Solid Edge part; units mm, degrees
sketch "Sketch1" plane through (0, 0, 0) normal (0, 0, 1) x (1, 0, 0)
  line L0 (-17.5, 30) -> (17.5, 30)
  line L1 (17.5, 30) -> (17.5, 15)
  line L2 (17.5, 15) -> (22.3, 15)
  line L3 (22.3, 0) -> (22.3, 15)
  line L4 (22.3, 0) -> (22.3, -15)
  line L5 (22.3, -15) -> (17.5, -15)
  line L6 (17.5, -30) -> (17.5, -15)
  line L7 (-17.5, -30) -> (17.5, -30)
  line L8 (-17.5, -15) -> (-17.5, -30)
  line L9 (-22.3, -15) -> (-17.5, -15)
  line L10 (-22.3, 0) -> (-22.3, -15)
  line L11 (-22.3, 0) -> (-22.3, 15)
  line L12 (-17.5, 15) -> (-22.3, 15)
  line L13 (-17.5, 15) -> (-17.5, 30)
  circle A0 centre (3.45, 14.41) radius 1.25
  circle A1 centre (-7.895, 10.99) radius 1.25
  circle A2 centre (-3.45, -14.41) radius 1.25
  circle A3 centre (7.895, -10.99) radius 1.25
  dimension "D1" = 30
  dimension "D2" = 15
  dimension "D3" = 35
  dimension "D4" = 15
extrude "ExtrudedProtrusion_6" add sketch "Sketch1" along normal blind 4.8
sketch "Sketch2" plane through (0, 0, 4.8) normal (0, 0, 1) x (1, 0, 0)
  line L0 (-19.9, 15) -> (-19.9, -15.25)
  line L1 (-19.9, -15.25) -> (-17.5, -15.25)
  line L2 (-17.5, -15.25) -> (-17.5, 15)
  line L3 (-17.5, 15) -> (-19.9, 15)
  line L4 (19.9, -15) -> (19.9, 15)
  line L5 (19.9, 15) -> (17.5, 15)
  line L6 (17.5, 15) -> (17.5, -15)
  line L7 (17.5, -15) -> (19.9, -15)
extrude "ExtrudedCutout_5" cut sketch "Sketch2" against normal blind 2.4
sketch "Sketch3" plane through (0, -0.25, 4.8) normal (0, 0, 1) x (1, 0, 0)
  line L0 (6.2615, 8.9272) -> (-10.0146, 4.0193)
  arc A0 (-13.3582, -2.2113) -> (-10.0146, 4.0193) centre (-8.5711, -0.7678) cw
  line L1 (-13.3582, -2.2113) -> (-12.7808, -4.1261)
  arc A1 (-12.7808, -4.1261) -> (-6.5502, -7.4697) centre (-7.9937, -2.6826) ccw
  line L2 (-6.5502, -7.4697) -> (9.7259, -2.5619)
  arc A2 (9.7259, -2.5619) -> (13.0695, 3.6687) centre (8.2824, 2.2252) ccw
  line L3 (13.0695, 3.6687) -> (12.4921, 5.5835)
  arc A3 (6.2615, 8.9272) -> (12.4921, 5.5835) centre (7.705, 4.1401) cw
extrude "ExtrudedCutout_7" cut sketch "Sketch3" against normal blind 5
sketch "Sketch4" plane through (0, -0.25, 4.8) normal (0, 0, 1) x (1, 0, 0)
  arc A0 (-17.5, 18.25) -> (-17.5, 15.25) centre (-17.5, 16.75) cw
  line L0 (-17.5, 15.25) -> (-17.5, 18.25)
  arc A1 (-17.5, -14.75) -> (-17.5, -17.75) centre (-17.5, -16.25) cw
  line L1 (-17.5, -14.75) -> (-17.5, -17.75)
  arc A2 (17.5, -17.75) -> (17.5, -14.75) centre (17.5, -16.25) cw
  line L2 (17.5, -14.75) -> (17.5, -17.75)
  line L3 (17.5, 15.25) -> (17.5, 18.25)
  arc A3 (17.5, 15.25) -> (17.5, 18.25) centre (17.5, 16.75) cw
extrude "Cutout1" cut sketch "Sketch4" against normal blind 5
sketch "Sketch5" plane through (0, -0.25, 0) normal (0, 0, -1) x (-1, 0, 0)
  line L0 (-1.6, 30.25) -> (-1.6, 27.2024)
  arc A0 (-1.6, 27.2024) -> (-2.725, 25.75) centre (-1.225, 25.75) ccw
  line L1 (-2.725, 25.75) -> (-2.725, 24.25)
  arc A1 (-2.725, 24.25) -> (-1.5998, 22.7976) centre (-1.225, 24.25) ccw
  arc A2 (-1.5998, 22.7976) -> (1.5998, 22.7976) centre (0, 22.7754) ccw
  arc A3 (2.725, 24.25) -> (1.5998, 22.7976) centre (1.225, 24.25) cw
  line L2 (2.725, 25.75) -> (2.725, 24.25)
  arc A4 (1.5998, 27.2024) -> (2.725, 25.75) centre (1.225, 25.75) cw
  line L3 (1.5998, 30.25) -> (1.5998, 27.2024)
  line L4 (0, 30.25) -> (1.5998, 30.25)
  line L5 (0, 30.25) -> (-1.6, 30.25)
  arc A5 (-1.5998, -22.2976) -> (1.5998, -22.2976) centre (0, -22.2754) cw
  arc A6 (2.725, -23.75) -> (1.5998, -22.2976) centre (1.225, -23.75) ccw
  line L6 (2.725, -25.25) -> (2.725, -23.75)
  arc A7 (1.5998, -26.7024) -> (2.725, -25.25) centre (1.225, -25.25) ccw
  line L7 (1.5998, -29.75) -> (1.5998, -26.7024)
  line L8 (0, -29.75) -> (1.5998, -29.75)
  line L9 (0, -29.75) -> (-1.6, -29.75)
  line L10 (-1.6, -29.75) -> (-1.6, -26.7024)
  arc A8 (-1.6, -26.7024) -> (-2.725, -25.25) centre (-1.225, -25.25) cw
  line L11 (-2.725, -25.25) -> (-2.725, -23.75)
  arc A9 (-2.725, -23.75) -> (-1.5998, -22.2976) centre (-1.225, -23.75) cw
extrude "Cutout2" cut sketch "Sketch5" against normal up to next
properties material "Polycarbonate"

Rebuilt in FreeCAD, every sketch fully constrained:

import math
import FreeCAD as App
import Part
import Sketcher
Q = App.Units.Quantity

doc = App.newDocument("Part")
params = doc.addObject("Spreadsheet::Sheet", "Params")
for row, (alias, value) in enumerate([
    ("sketch1_diameter", "2.5 mm"),
    ("sketch1_width", "35 mm"),
    ("sketch1_height", "15 mm"),
    ("sketch1_height2", "30 mm"),
    ("sketch1_width2", "4.8 mm"),
    ("pad1_length", "4.8 mm"),
    ("sketch2_height", "30 mm"),
    ("sketch2_width", "2.4 mm"),
    ("sketch2_height2", "30.25 mm"),
    ("pocket1_length", "2.4 mm"),
    ("sketch3_radius", "5 mm"),
    ("sketch3_length", "17 mm"),
    ("sketch3_length2", "2 mm"),
    ("pocket2_length", "5 mm"),
    ("sketch4_radius", "1.5 mm"),
    ("pocket3_length", "5 mm"),
    ("sketch5_radius", "1.5 mm"),
    ("sketch5_radius2", "1.5 mm"),
    ("sketch5_radius3", "1.6 mm"),
    ("sketch5_radius4", "1.5 mm"),
    ("sketch5_radius5", "1.5 mm"),
    ("pocket4_length", "4.8 mm"),
], start=1):
    params.set(f"A{row}", alias)
    params.set(f"B{row}", "=" + value)
    params.setAlias(f"B{row}", alias)

body = doc.addObject("PartDesign::Body", "Body")

# Sketch on XY plane
sketch1 = doc.addObject("Sketcher::SketchObject", "Sketch")
body.addObject(sketch1)
sketch1.AttachmentSupport = (doc.XY_Plane, [""])
sketch1.MapMode = "FlatFace"
sketch1.addGeometry([
    Part.LineSegment(App.Vector(17.5, 30, 0), App.Vector(-17.5, 30, 0)),  # 0
    Part.LineSegment(App.Vector(-17.5, 30, 0), App.Vector(-17.5, 15, 0)),  # 1
    Part.LineSegment(App.Vector(-17.5, 15, 0), App.Vector(-22.3, 15, 0)),  # 2
    Part.LineSegment(App.Vector(-22.3, 15, 0), App.Vector(-22.3, -15, 0)),  # 3
    Part.LineSegment(App.Vector(-22.3, -15, 0), App.Vector(-17.5, -15, 0)),  # 4
    Part.LineSegment(App.Vector(-17.5, -15, 0), App.Vector(-17.5, -30, 0)),  # 5
    Part.LineSegment(App.Vector(-17.5, -30, 0), App.Vector(17.5, -30, 0)),  # 6
    Part.LineSegment(App.Vector(17.5, -30, 0), App.Vector(17.5, -15, 0)),  # 7
    Part.LineSegment(App.Vector(17.5, -15, 0), App.Vector(22.3, -15, 0)),  # 8
    Part.LineSegment(App.Vector(22.3, -15, 0), App.Vector(22.3, 15, 0)),  # 9
    Part.LineSegment(App.Vector(22.3, 15, 0), App.Vector(17.5, 15, 0)),  # 10
    Part.LineSegment(App.Vector(17.5, 15, 0), App.Vector(17.5, 30, 0)),  # 11
    Part.Circle(App.Vector(-3.5, -14.4, 0), App.Vector(0, 0, 1), 1.2),  # 12
    Part.Circle(App.Vector(7.9, -11, 0), App.Vector(0, 0, 1), 1.2),  # 13
    Part.Circle(App.Vector(-7.9, 11, 0), App.Vector(0, 0, 1), 1.2),  # 14
    Part.Circle(App.Vector(3.5, 14.4, 0), App.Vector(0, 0, 1), 1.2),  # 15
], False)
sketch1.addConstraint([
    Sketcher.Constraint("Coincident", 0, 2, 1, 1),
    Sketcher.Constraint("Coincident", 1, 2, 2, 1),
    Sketcher.Constraint("Coincident", 2, 2, 3, 1),
    Sketcher.Constraint("Coincident", 3, 2, 4, 1),
    Sketcher.Constraint("Coincident", 4, 2, 5, 1),
    Sketcher.Constraint("Coincident", 5, 2, 6, 1),
    Sketcher.Constraint("Coincident", 6, 2, 7, 1),
    Sketcher.Constraint("Coincident", 7, 2, 8, 1),
    Sketcher.Constraint("Coincident", 8, 2, 9, 1),
    Sketcher.Constraint("Coincident", 9, 2, 10, 1),
    Sketcher.Constraint("Coincident", 10, 2, 11, 1),
    Sketcher.Constraint("Coincident", 11, 2, 0, 1),
    Sketcher.Constraint("Horizontal", 0),
    Sketcher.Constraint("Vertical", 1),
    Sketcher.Constraint("Horizontal", 2),
    Sketcher.Constraint("Vertical", 3),
    Sketcher.Constraint("Horizontal", 4),
    Sketcher.Constraint("Vertical", 5),
    Sketcher.Constraint("Horizontal", 6),
    Sketcher.Constraint("Vertical", 7),
    Sketcher.Constraint("Horizontal", 8),
    Sketcher.Constraint("Vertical", 9),
    Sketcher.Constraint("Horizontal", 10),
    Sketcher.Constraint("Vertical", 11),
    Sketcher.Constraint("Equal", 12, 13),
    Sketcher.Constraint("Equal", 13, 14),
    Sketcher.Constraint("Equal", 14, 15),
    Sketcher.Constraint("Symmetric", 13, 3, 14, 3, -1, 1),
    Sketcher.Constraint("Symmetric", 12, 3, 15, 3, -1, 1),
    Sketcher.Constraint("Symmetric", 0, 2, 6, 2, -1, 1),
    Sketcher.Constraint("Symmetric", 2, 2, 8, 2, -1, 1),
    Sketcher.Constraint("Symmetric", 4, 2, 10, 2, -1, 1),
    Sketcher.Constraint("Symmetric", 4, 2, 7, 2, -2),
    Sketcher.Constraint("Diameter", 12, Q("2.5 mm")),
    Sketcher.Constraint("DistanceX", 0, 2, 0, 1, Q("35 mm")),
    Sketcher.Constraint("DistanceY", 1, 2, 1, 1, Q("15 mm")),
    Sketcher.Constraint("DistanceY", 3, 2, 3, 1, Q("30 mm")),
    Sketcher.Constraint("DistanceX", 2, 2, 2, 1, Q("4.8 mm")),
    Sketcher.Constraint("DistanceY", 12, 3, 14, 3, Q("25.4 mm")),
    Sketcher.Constraint("DistanceX", 12, 3, 15, 3, Q("6.9 mm")),
    Sketcher.Constraint("DistanceY", 12, 3, -1, 1, Q("14.41 mm")),
    Sketcher.Constraint("DistanceX", 14, 3, 13, 3, Q("15.79 mm")),
])
sketch1.setExpression("Constraints[33]", "Params.sketch1_diameter")
sketch1.setExpression("Constraints[34]", "Params.sketch1_width")
sketch1.setExpression("Constraints[35]", "Params.sketch1_height")
sketch1.setExpression("Constraints[36]", "Params.sketch1_height2")
sketch1.setExpression("Constraints[37]", "Params.sketch1_width2")
pad1 = doc.addObject("PartDesign::Pad", "Pad")
body.addObject(pad1)
pad1.Profile = sketch1
pad1.setExpression("Length", "Params.pad1_length")

# Sketch on XY plane
sketch2 = doc.addObject("Sketcher::SketchObject", "Sketch001")
body.addObject(sketch2)
sketch2.AttachmentSupport = (doc.XY_Plane, [""])
sketch2.MapMode = "FlatFace"
sketch2.AttachmentOffset = App.Placement(App.Vector(0, 0, 4.8), App.Rotation())
sketch2.addGeometry([
    Part.LineSegment(App.Vector(-17.5, 15, 0), App.Vector(-19.9, 15, 0)),  # 0
    Part.LineSegment(App.Vector(-19.9, 15, 0), App.Vector(-19.9, -15.2, 0)),  # 1
    Part.LineSegment(App.Vector(-19.9, -15.2, 0), App.Vector(-17.5, -15.2, 0)),  # 2
    Part.LineSegment(App.Vector(-17.5, -15.2, 0), App.Vector(-17.5, 15, 0)),  # 3
    Part.LineSegment(App.Vector(17.5, -15, 0), App.Vector(19.9, -15, 0)),  # 4
    Part.LineSegment(App.Vector(19.9, -15, 0), App.Vector(19.9, 15, 0)),  # 5
    Part.LineSegment(App.Vector(19.9, 15, 0), App.Vector(17.5, 15, 0)),  # 6
    Part.LineSegment(App.Vector(17.5, 15, 0), App.Vector(17.5, -15, 0)),  # 7
], False)
sketch2.addConstraint([
    Sketcher.Constraint("Coincident", 0, 2, 1, 1),
    Sketcher.Constraint("Coincident", 1, 2, 2, 1),
    Sketcher.Constraint("Coincident", 2, 2, 3, 1),
    Sketcher.Constraint("Coincident", 3, 2, 0, 1),
    Sketcher.Constraint("Coincident", 4, 2, 5, 1),
    Sketcher.Constraint("Coincident", 5, 2, 6, 1),
    Sketcher.Constraint("Coincident", 6, 2, 7, 1),
    Sketcher.Constraint("Coincident", 7, 2, 4, 1),
    Sketcher.Constraint("Horizontal", 0),
    Sketcher.Constraint("Vertical", 1),
    Sketcher.Constraint("Horizontal", 2),
    Sketcher.Constraint("Vertical", 3),
    Sketcher.Constraint("Horizontal", 4),
    Sketcher.Constraint("Vertical", 5),
    Sketcher.Constraint("Horizontal", 6),
    Sketcher.Constraint("Vertical", 7),
    Sketcher.Constraint("Symmetric", 0, 2, 4, 2, -1, 1),
    Sketcher.Constraint("Symmetric", 3, 2, 6, 2, -2),
    Sketcher.Constraint("DistanceY", 5, 1, 5, 2, Q("30 mm")),
    Sketcher.Constraint("DistanceX", 0, 2, 0, 1, Q("2.4 mm")),
    Sketcher.Constraint("DistanceX", 3, 2, 6, 2, Q("35 mm")),
    Sketcher.Constraint("DistanceY", 1, 2, 1, 1, Q("30.25 mm")),
])
sketch2.setExpression("Constraints[18]", "Params.sketch2_height")
sketch2.setExpression("Constraints[19]", "Params.sketch2_width")
sketch2.setExpression("Constraints[21]", "Params.sketch2_height2")
pocket1 = doc.addObject("PartDesign::Pocket", "Pocket")
body.addObject(pocket1)
pocket1.Profile = sketch2
pocket1.setExpression("Length", "Params.pocket1_length")

# Sketch on XY plane
sketch3 = doc.addObject("Sketcher::SketchObject", "Sketch002")
body.addObject(sketch3)
sketch3.AttachmentSupport = (doc.XY_Plane, [""])
sketch3.MapMode = "FlatFace"
sketch3.AttachmentOffset = App.Placement(App.Vector(0, 0, 4.8), App.Rotation())
sketch3.addGeometry([
    Part.ArcOfCircle(Part.Circle(App.Vector(7.7, 3.9, 0), App.Vector(0, 0, 1), 5), math.radians(17), math.radians(107)),  # 0
    Part.LineSegment(App.Vector(6.3, 8.7, 0), App.Vector(-10, 3.8, 0)),  # 1
    Part.ArcOfCircle(Part.Circle(App.Vector(-8.6, -1, 0), App.Vector(0, 0, 1), 5), math.radians(107), math.radians(197)),  # 2
    Part.LineSegment(App.Vector(-13.4, -2.5, 0), App.Vector(-12.8, -4.4, 0)),  # 3
    Part.ArcOfCircle(Part.Circle(App.Vector(-8, -2.9, 0), App.Vector(0, 0, 1), 5), math.radians(-163), math.radians(-73)),  # 4
    Part.LineSegment(App.Vector(-6.6, -7.7, 0), App.Vector(9.7, -2.8, 0)),  # 5
    Part.ArcOfCircle(Part.Circle(App.Vector(8.3, 2, 0), App.Vector(0, 0, 1), 5), math.radians(-73), math.radians(17)),  # 6
    Part.LineSegment(App.Vector(13.1, 3.4, 0), App.Vector(12.5, 5.3, 0)),  # 7
], False)
sketch3.addConstraint([
    Sketcher.Constraint("Tangent", 0, 2, 1, 1),
    Sketcher.Constraint("Tangent", 1, 2, 2, 1),
    Sketcher.Constraint("Tangent", 2, 2, 3, 1),
    Sketcher.Constraint("Tangent", 3, 2, 4, 1),
    Sketcher.Constraint("Tangent", 4, 2, 5, 1),
    Sketcher.Constraint("Tangent", 5, 2, 6, 1),
    Sketcher.Constraint("Tangent", 6, 2, 7, 1),
    Sketcher.Constraint("Tangent", 7, 2, 0, 1),
    Sketcher.Constraint("Equal", 0, 2),
    Sketcher.Constraint("Equal", 2, 4),
    Sketcher.Constraint("Equal", 4, 6),
    Sketcher.Constraint("Perpendicular", 1, 3),
    Sketcher.Constraint("Perpendicular", 3, 5),
    Sketcher.Constraint("Perpendicular", 5, 7),
    Sketcher.Constraint("Radius", 0, Q("5 mm")),
    Sketcher.Constraint("Distance", 1, Q("17 mm")),
    Sketcher.Constraint("Distance", 3, Q("2 mm")),
    Sketcher.Constraint("Angle", 1, Q("-163.2198 deg")),
    Sketcher.Constraint("DistanceY", -1, 1, 0, 3, Q("3.89 mm")),
    Sketcher.Constraint("DistanceX", -1, 1, 0, 3, Q("7.705 mm")),
])
sketch3.setExpression("Constraints[14]", "Params.sketch3_radius")
sketch3.setExpression("Constraints[15]", "Params.sketch3_length")
sketch3.setExpression("Constraints[16]", "Params.sketch3_length2")
pocket2 = doc.addObject("PartDesign::Pocket", "Pocket001")
body.addObject(pocket2)
pocket2.Profile = sketch3
pocket2.setExpression("Length", "Params.pocket2_length")

# Sketch on XY plane
sketch4 = doc.addObject("Sketcher::SketchObject", "Sketch003")
body.addObject(sketch4)
sketch4.AttachmentSupport = (doc.XY_Plane, [""])
sketch4.MapMode = "FlatFace"
sketch4.AttachmentOffset = App.Placement(App.Vector(0, 0, 4.8), App.Rotation())
sketch4.addGeometry([
    Part.ArcOfCircle(Part.Circle(App.Vector(-17.5, 16.5, 0), App.Vector(0, 0, 1), 1.5), math.radians(-90), math.radians(90)),  # 0
    Part.LineSegment(App.Vector(-17.5, 18, 0), App.Vector(-17.5, 15, 0)),  # 1
    Part.ArcOfCircle(Part.Circle(App.Vector(-17.5, -16.5, 0), App.Vector(0, 0, 1), 1.5), math.radians(-90), math.radians(90)),  # 2
    Part.LineSegment(App.Vector(-17.5, -15, 0), App.Vector(-17.5, -18, 0)),  # 3
    Part.ArcOfCircle(Part.Circle(App.Vector(17.5, -16.5, 0), App.Vector(0, 0, 1), 1.5), math.radians(90), math.radians(270)),  # 4
    Part.LineSegment(App.Vector(17.5, -18, 0), App.Vector(17.5, -15, 0)),  # 5
    Part.ArcOfCircle(Part.Circle(App.Vector(17.5, 16.5, 0), App.Vector(0, 0, 1), 1.5), math.radians(90), math.radians(270)),  # 6
    Part.LineSegment(App.Vector(17.5, 15, 0), App.Vector(17.5, 18, 0)),  # 7
], False)
sketch4.addConstraint([
    Sketcher.Constraint("Coincident", 0, 1, 1, 2),
    Sketcher.Constraint("Coincident", 1, 1, 0, 2),
    Sketcher.Constraint("Coincident", 2, 1, 3, 2),
    Sketcher.Constraint("Coincident", 3, 1, 2, 2),
    Sketcher.Constraint("Coincident", 4, 1, 5, 2),
    Sketcher.Constraint("Coincident", 5, 1, 4, 2),
    Sketcher.Constraint("Coincident", 6, 1, 7, 2),
    Sketcher.Constraint("Coincident", 7, 1, 6, 2),
    Sketcher.Constraint("Vertical", 1),
    Sketcher.Constraint("Vertical", 3),
    Sketcher.Constraint("Vertical", 5),
    Sketcher.Constraint("Vertical", 7),
    Sketcher.Constraint("Equal", 0, 2),
    Sketcher.Constraint("Equal", 2, 4),
    Sketcher.Constraint("Equal", 4, 6),
    Sketcher.Constraint("Symmetric", 0, 3, 4, 3, -1, 1),
    Sketcher.Constraint("Symmetric", 2, 3, 6, 3, -1, 1),
    Sketcher.Constraint("Symmetric", 2, 3, 4, 3, -2),
    Sketcher.Constraint("Vertical", 2, 3, 0, 1),
    Sketcher.Constraint("Vertical", 1, 1, 2, 1),
    Sketcher.Constraint("Vertical", 6, 3, 4, 1),
    Sketcher.Constraint("Vertical", 5, 1, 6, 1),
    Sketcher.Constraint("Radius", 0, Q("1.5 mm")),
    Sketcher.Constraint("DistanceY", -1, 1, 0, 1, Q("15 mm")),
    Sketcher.Constraint("DistanceX", 2, 3, 4, 3, Q("35 mm")),
])
sketch4.setExpression("Constraints[22]", "Params.sketch4_radius")
pocket3 = doc.addObject("PartDesign::Pocket", "Pocket002")
body.addObject(pocket3)
pocket3.Profile = sketch4
pocket3.setExpression("Length", "Params.pocket3_length")

# Sketch on XY plane
sketch5 = doc.addObject("Sketcher::SketchObject", "Sketch004")
body.addObject(sketch5)
sketch5.AttachmentSupport = (doc.XY_Plane, [""])
sketch5.MapMode = "FlatFace"
sketch5.addGeometry([
    Part.LineSegment(App.Vector(-1.5998, 30, 0), App.Vector(1.6, 30, 0)),  # 0
    Part.LineSegment(App.Vector(1.6, 30, 0), App.Vector(1.6, 26.9524, 0)),  # 1
    Part.ArcOfCircle(Part.Circle(App.Vector(1.225, 25.5, 0), App.Vector(0, 0, 1), 1.50003), math.radians(0), math.radians(75.522786)),  # 2
    Part.LineSegment(App.Vector(2.725, 25.5, 0), App.Vector(2.725, 24, 0)),  # 3
    Part.ArcOfCircle(Part.Circle(App.Vector(1.225, 24, 0), App.Vector(0, 0, 1), 1.5), math.radians(-75.530183), math.radians(0)),  # 4
    Part.ArcOfCircle(Part.Circle(App.Vector(0, 22.5254, 0), App.Vector(0, 0, 1), 1.599954), math.radians(179.204973), math.radians(360.795027)),  # 5
    Part.ArcOfCircle(Part.Circle(App.Vector(-1.225, 24, 0), App.Vector(0, 0, 1), 1.5), math.radians(180), math.radians(255.530183)),  # 6
    Part.LineSegment(App.Vector(-2.725, 24, 0), App.Vector(-2.725, 25.5, 0)),  # 7
    Part.ArcOfCircle(Part.Circle(App.Vector(-1.225, 25.5, 0), App.Vector(0, 0, 1), 1.49998), math.radians(104.469817), math.radians(180)),  # 8
    Part.LineSegment(App.Vector(-1.5998, 26.9524, 0), App.Vector(-1.5998, 30, 0)),  # 9
    Part.ArcOfCircle(Part.Circle(App.Vector(0, -22.5254, 0), App.Vector(0, 0, 1), 1.599954), math.radians(-0.795027), math.radians(180.795027)),  # 10
    Part.ArcOfCircle(Part.Circle(App.Vector(1.225, -24, 0), App.Vector(0, 0, 1), 1.5), math.radians(0), math.radians(75.530183)),  # 11
    Part.LineSegment(App.Vector(2.725, -24, 0), App.Vector(2.725, -25.5, 0)),  # 12
    Part.ArcOfCircle(Part.Circle(App.Vector(1.225, -25.5, 0), App.Vector(0, 0, 1), 1.50003), math.radians(-75.522786), math.radians(0)),  # 13
    Part.LineSegment(App.Vector(1.6, -26.9524, 0), App.Vector(1.6, -30, 0)),  # 14
    Part.LineSegment(App.Vector(1.6, -30, 0), App.Vector(-1.5998, -30, 0)),  # 15
    Part.LineSegment(App.Vector(-1.5998, -30, 0), App.Vector(-1.5998, -26.9524, 0)),  # 16
    Part.ArcOfCircle(Part.Circle(App.Vector(-1.225, -25.5, 0), App.Vector(0, 0, 1), 1.49998), math.radians(180), math.radians(255.530183)),  # 17
    Part.LineSegment(App.Vector(-2.725, -25.5, 0), App.Vector(-2.725, -24, 0)),  # 18
    Part.ArcOfCircle(Part.Circle(App.Vector(-1.225, -24, 0), App.Vector(0, 0, 1), 1.5), math.radians(104.469817), math.radians(180)),  # 19
], False)
sketch5.addConstraint([
    Sketcher.Constraint("Coincident", 0, 2, 1, 1),
    Sketcher.Constraint("Coincident", 1, 2, 2, 2),
    Sketcher.Constraint("Coincident", 2, 1, 3, 1),
    Sketcher.Constraint("Coincident", 3, 2, 4, 2),
    Sketcher.Constraint("Coincident", 4, 1, 5, 2),
    Sketcher.Constraint("Coincident", 5, 1, 6, 2),
    Sketcher.Constraint("Coincident", 6, 1, 7, 1),
    Sketcher.Constraint("Coincident", 7, 2, 8, 2),
    Sketcher.Constraint("Coincident", 8, 1, 9, 1),
    Sketcher.Constraint("Coincident", 9, 2, 0, 1),
    Sketcher.Constraint("Coincident", 10, 1, 11, 2),
    Sketcher.Constraint("Coincident", 11, 1, 12, 1),
    Sketcher.Constraint("Coincident", 12, 2, 13, 2),
    Sketcher.Constraint("Coincident", 13, 1, 14, 1),
    Sketcher.Constraint("Coincident", 14, 2, 15, 1),
    Sketcher.Constraint("Coincident", 15, 2, 16, 1),
    Sketcher.Constraint("Coincident", 16, 2, 17, 2),
    Sketcher.Constraint("Coincident", 17, 1, 18, 1),
    Sketcher.Constraint("Coincident", 18, 2, 19, 2),
    Sketcher.Constraint("Coincident", 19, 1, 10, 2),
    Sketcher.Constraint("Horizontal", 0),
    Sketcher.Constraint("Vertical", 1),
    Sketcher.Constraint("Vertical", 3),
    Sketcher.Constraint("Vertical", 7),
    Sketcher.Constraint("Vertical", 9),
    Sketcher.Constraint("Vertical", 12),
    Sketcher.Constraint("Vertical", 14),
    Sketcher.Constraint("Horizontal", 15),
    Sketcher.Constraint("Vertical", 16),
    Sketcher.Constraint("Vertical", 18),
    Sketcher.Constraint("PointOnObject", 5, 3, -2),
    Sketcher.Constraint("PointOnObject", 10, 3, -2),
    Sketcher.Constraint("Radius", 2, Q("1.5 mm")),
    Sketcher.Constraint("Radius", 4, Q("1.5 mm")),
    Sketcher.Constraint("Radius", 5, Q("1.6 mm")),
    Sketcher.Constraint("Radius", 6, Q("1.5 mm")),
    Sketcher.Constraint("Radius", 8, Q("1.5 mm")),
    Sketcher.Constraint("Radius", 10, Q("1.6 mm")),
    Sketcher.Constraint("Radius", 11, Q("1.5 mm")),
    Sketcher.Constraint("Radius", 13, Q("1.5 mm")),
    Sketcher.Constraint("Radius", 17, Q("1.5 mm")),
    Sketcher.Constraint("Radius", 19, Q("1.5 mm")),
    Sketcher.Constraint("DistanceY", 3, 2, 3, 1, Q("1.5 mm")),
    Sketcher.Constraint("DistanceY", 7, 1, 7, 2, Q("1.5 mm")),
    Sketcher.Constraint("DistanceY", 12, 2, 12, 1, Q("1.5 mm")),
    Sketcher.Constraint("DistanceY", 18, 1, 18, 2, Q("1.5 mm")),
    Sketcher.Constraint("DistanceY", -1, 1, 4, 3, Q("24 mm")),
    Sketcher.Constraint("DistanceY", -1, 1, 6, 3, Q("24 mm")),
    Sketcher.Constraint("DistanceY", 11, 3, -1, 1, Q("24 mm")),
    Sketcher.Constraint("DistanceY", 19, 3, -1, 1, Q("24 mm")),
    Sketcher.Constraint("DistanceY", -1, 1, 0, 2, Q("30 mm")),
    Sketcher.Constraint("DistanceY", -1, 1, 3, 2, Q("24 mm")),
    Sketcher.Constraint("DistanceY", -1, 1, 6, 1, Q("24 mm")),
    Sketcher.Constraint("DistanceY", 11, 1, -1, 1, Q("24 mm")),
    Sketcher.Constraint("DistanceY", 14, 2, -1, 1, Q("30 mm")),
    Sketcher.Constraint("DistanceY", 18, 2, -1, 1, Q("24 mm")),
    Sketcher.Constraint("DistanceY", -1, 1, 2, 3, Q("25.5 mm")),
    Sketcher.Constraint("DistanceY", -1, 1, 8, 3, Q("25.5 mm")),
    Sketcher.Constraint("DistanceY", 13, 3, -1, 1, Q("25.5 mm")),
    Sketcher.Constraint("DistanceY", 17, 3, -1, 1, Q("25.5 mm")),
    Sketcher.Constraint("DistanceX", -1, 1, 0, 2, Q("1.6 mm")),
    Sketcher.Constraint("DistanceX", -1, 1, 13, 1, Q("1.6 mm")),
    Sketcher.Constraint("DistanceX", 6, 3, 4, 3, Q("2.45 mm")),
    Sketcher.Constraint("DistanceX", 6, 3, 11, 3, Q("2.45 mm")),
    Sketcher.Constraint("DistanceX", 17, 3, 13, 3, Q("2.45 mm")),
    Sketcher.Constraint("DistanceX", 0, 1, 0, 2, Q("3.1998 mm")),
    Sketcher.Constraint("DistanceX", 15, 2, 15, 1, Q("3.1998 mm")),
    Sketcher.Constraint("DistanceY", 1, 2, 1, 1, Q("3.0476 mm")),
    Sketcher.Constraint("DistanceY", -1, 1, 5, 3, Q("22.5254 mm")),
    Sketcher.Constraint("DistanceY", 10, 3, -1, 1, Q("22.5254 mm")),
])
sketch5.setExpression("Constraints[32]", "Params.sketch5_radius")
sketch5.setExpression("Constraints[33]", "Params.sketch5_radius2")
sketch5.setExpression("Constraints[34]", "Params.sketch5_radius3")
sketch5.setExpression("Constraints[35]", "Params.sketch5_radius4")
sketch5.setExpression("Constraints[36]", "Params.sketch5_radius5")
pocket4 = doc.addObject("PartDesign::Pocket", "Pocket003")
body.addObject(pocket4)
pocket4.Profile = sketch5
pocket4.setExpression("Length", "Params.pocket4_length")
pocket4.Reversed = True

doc.recompute()
